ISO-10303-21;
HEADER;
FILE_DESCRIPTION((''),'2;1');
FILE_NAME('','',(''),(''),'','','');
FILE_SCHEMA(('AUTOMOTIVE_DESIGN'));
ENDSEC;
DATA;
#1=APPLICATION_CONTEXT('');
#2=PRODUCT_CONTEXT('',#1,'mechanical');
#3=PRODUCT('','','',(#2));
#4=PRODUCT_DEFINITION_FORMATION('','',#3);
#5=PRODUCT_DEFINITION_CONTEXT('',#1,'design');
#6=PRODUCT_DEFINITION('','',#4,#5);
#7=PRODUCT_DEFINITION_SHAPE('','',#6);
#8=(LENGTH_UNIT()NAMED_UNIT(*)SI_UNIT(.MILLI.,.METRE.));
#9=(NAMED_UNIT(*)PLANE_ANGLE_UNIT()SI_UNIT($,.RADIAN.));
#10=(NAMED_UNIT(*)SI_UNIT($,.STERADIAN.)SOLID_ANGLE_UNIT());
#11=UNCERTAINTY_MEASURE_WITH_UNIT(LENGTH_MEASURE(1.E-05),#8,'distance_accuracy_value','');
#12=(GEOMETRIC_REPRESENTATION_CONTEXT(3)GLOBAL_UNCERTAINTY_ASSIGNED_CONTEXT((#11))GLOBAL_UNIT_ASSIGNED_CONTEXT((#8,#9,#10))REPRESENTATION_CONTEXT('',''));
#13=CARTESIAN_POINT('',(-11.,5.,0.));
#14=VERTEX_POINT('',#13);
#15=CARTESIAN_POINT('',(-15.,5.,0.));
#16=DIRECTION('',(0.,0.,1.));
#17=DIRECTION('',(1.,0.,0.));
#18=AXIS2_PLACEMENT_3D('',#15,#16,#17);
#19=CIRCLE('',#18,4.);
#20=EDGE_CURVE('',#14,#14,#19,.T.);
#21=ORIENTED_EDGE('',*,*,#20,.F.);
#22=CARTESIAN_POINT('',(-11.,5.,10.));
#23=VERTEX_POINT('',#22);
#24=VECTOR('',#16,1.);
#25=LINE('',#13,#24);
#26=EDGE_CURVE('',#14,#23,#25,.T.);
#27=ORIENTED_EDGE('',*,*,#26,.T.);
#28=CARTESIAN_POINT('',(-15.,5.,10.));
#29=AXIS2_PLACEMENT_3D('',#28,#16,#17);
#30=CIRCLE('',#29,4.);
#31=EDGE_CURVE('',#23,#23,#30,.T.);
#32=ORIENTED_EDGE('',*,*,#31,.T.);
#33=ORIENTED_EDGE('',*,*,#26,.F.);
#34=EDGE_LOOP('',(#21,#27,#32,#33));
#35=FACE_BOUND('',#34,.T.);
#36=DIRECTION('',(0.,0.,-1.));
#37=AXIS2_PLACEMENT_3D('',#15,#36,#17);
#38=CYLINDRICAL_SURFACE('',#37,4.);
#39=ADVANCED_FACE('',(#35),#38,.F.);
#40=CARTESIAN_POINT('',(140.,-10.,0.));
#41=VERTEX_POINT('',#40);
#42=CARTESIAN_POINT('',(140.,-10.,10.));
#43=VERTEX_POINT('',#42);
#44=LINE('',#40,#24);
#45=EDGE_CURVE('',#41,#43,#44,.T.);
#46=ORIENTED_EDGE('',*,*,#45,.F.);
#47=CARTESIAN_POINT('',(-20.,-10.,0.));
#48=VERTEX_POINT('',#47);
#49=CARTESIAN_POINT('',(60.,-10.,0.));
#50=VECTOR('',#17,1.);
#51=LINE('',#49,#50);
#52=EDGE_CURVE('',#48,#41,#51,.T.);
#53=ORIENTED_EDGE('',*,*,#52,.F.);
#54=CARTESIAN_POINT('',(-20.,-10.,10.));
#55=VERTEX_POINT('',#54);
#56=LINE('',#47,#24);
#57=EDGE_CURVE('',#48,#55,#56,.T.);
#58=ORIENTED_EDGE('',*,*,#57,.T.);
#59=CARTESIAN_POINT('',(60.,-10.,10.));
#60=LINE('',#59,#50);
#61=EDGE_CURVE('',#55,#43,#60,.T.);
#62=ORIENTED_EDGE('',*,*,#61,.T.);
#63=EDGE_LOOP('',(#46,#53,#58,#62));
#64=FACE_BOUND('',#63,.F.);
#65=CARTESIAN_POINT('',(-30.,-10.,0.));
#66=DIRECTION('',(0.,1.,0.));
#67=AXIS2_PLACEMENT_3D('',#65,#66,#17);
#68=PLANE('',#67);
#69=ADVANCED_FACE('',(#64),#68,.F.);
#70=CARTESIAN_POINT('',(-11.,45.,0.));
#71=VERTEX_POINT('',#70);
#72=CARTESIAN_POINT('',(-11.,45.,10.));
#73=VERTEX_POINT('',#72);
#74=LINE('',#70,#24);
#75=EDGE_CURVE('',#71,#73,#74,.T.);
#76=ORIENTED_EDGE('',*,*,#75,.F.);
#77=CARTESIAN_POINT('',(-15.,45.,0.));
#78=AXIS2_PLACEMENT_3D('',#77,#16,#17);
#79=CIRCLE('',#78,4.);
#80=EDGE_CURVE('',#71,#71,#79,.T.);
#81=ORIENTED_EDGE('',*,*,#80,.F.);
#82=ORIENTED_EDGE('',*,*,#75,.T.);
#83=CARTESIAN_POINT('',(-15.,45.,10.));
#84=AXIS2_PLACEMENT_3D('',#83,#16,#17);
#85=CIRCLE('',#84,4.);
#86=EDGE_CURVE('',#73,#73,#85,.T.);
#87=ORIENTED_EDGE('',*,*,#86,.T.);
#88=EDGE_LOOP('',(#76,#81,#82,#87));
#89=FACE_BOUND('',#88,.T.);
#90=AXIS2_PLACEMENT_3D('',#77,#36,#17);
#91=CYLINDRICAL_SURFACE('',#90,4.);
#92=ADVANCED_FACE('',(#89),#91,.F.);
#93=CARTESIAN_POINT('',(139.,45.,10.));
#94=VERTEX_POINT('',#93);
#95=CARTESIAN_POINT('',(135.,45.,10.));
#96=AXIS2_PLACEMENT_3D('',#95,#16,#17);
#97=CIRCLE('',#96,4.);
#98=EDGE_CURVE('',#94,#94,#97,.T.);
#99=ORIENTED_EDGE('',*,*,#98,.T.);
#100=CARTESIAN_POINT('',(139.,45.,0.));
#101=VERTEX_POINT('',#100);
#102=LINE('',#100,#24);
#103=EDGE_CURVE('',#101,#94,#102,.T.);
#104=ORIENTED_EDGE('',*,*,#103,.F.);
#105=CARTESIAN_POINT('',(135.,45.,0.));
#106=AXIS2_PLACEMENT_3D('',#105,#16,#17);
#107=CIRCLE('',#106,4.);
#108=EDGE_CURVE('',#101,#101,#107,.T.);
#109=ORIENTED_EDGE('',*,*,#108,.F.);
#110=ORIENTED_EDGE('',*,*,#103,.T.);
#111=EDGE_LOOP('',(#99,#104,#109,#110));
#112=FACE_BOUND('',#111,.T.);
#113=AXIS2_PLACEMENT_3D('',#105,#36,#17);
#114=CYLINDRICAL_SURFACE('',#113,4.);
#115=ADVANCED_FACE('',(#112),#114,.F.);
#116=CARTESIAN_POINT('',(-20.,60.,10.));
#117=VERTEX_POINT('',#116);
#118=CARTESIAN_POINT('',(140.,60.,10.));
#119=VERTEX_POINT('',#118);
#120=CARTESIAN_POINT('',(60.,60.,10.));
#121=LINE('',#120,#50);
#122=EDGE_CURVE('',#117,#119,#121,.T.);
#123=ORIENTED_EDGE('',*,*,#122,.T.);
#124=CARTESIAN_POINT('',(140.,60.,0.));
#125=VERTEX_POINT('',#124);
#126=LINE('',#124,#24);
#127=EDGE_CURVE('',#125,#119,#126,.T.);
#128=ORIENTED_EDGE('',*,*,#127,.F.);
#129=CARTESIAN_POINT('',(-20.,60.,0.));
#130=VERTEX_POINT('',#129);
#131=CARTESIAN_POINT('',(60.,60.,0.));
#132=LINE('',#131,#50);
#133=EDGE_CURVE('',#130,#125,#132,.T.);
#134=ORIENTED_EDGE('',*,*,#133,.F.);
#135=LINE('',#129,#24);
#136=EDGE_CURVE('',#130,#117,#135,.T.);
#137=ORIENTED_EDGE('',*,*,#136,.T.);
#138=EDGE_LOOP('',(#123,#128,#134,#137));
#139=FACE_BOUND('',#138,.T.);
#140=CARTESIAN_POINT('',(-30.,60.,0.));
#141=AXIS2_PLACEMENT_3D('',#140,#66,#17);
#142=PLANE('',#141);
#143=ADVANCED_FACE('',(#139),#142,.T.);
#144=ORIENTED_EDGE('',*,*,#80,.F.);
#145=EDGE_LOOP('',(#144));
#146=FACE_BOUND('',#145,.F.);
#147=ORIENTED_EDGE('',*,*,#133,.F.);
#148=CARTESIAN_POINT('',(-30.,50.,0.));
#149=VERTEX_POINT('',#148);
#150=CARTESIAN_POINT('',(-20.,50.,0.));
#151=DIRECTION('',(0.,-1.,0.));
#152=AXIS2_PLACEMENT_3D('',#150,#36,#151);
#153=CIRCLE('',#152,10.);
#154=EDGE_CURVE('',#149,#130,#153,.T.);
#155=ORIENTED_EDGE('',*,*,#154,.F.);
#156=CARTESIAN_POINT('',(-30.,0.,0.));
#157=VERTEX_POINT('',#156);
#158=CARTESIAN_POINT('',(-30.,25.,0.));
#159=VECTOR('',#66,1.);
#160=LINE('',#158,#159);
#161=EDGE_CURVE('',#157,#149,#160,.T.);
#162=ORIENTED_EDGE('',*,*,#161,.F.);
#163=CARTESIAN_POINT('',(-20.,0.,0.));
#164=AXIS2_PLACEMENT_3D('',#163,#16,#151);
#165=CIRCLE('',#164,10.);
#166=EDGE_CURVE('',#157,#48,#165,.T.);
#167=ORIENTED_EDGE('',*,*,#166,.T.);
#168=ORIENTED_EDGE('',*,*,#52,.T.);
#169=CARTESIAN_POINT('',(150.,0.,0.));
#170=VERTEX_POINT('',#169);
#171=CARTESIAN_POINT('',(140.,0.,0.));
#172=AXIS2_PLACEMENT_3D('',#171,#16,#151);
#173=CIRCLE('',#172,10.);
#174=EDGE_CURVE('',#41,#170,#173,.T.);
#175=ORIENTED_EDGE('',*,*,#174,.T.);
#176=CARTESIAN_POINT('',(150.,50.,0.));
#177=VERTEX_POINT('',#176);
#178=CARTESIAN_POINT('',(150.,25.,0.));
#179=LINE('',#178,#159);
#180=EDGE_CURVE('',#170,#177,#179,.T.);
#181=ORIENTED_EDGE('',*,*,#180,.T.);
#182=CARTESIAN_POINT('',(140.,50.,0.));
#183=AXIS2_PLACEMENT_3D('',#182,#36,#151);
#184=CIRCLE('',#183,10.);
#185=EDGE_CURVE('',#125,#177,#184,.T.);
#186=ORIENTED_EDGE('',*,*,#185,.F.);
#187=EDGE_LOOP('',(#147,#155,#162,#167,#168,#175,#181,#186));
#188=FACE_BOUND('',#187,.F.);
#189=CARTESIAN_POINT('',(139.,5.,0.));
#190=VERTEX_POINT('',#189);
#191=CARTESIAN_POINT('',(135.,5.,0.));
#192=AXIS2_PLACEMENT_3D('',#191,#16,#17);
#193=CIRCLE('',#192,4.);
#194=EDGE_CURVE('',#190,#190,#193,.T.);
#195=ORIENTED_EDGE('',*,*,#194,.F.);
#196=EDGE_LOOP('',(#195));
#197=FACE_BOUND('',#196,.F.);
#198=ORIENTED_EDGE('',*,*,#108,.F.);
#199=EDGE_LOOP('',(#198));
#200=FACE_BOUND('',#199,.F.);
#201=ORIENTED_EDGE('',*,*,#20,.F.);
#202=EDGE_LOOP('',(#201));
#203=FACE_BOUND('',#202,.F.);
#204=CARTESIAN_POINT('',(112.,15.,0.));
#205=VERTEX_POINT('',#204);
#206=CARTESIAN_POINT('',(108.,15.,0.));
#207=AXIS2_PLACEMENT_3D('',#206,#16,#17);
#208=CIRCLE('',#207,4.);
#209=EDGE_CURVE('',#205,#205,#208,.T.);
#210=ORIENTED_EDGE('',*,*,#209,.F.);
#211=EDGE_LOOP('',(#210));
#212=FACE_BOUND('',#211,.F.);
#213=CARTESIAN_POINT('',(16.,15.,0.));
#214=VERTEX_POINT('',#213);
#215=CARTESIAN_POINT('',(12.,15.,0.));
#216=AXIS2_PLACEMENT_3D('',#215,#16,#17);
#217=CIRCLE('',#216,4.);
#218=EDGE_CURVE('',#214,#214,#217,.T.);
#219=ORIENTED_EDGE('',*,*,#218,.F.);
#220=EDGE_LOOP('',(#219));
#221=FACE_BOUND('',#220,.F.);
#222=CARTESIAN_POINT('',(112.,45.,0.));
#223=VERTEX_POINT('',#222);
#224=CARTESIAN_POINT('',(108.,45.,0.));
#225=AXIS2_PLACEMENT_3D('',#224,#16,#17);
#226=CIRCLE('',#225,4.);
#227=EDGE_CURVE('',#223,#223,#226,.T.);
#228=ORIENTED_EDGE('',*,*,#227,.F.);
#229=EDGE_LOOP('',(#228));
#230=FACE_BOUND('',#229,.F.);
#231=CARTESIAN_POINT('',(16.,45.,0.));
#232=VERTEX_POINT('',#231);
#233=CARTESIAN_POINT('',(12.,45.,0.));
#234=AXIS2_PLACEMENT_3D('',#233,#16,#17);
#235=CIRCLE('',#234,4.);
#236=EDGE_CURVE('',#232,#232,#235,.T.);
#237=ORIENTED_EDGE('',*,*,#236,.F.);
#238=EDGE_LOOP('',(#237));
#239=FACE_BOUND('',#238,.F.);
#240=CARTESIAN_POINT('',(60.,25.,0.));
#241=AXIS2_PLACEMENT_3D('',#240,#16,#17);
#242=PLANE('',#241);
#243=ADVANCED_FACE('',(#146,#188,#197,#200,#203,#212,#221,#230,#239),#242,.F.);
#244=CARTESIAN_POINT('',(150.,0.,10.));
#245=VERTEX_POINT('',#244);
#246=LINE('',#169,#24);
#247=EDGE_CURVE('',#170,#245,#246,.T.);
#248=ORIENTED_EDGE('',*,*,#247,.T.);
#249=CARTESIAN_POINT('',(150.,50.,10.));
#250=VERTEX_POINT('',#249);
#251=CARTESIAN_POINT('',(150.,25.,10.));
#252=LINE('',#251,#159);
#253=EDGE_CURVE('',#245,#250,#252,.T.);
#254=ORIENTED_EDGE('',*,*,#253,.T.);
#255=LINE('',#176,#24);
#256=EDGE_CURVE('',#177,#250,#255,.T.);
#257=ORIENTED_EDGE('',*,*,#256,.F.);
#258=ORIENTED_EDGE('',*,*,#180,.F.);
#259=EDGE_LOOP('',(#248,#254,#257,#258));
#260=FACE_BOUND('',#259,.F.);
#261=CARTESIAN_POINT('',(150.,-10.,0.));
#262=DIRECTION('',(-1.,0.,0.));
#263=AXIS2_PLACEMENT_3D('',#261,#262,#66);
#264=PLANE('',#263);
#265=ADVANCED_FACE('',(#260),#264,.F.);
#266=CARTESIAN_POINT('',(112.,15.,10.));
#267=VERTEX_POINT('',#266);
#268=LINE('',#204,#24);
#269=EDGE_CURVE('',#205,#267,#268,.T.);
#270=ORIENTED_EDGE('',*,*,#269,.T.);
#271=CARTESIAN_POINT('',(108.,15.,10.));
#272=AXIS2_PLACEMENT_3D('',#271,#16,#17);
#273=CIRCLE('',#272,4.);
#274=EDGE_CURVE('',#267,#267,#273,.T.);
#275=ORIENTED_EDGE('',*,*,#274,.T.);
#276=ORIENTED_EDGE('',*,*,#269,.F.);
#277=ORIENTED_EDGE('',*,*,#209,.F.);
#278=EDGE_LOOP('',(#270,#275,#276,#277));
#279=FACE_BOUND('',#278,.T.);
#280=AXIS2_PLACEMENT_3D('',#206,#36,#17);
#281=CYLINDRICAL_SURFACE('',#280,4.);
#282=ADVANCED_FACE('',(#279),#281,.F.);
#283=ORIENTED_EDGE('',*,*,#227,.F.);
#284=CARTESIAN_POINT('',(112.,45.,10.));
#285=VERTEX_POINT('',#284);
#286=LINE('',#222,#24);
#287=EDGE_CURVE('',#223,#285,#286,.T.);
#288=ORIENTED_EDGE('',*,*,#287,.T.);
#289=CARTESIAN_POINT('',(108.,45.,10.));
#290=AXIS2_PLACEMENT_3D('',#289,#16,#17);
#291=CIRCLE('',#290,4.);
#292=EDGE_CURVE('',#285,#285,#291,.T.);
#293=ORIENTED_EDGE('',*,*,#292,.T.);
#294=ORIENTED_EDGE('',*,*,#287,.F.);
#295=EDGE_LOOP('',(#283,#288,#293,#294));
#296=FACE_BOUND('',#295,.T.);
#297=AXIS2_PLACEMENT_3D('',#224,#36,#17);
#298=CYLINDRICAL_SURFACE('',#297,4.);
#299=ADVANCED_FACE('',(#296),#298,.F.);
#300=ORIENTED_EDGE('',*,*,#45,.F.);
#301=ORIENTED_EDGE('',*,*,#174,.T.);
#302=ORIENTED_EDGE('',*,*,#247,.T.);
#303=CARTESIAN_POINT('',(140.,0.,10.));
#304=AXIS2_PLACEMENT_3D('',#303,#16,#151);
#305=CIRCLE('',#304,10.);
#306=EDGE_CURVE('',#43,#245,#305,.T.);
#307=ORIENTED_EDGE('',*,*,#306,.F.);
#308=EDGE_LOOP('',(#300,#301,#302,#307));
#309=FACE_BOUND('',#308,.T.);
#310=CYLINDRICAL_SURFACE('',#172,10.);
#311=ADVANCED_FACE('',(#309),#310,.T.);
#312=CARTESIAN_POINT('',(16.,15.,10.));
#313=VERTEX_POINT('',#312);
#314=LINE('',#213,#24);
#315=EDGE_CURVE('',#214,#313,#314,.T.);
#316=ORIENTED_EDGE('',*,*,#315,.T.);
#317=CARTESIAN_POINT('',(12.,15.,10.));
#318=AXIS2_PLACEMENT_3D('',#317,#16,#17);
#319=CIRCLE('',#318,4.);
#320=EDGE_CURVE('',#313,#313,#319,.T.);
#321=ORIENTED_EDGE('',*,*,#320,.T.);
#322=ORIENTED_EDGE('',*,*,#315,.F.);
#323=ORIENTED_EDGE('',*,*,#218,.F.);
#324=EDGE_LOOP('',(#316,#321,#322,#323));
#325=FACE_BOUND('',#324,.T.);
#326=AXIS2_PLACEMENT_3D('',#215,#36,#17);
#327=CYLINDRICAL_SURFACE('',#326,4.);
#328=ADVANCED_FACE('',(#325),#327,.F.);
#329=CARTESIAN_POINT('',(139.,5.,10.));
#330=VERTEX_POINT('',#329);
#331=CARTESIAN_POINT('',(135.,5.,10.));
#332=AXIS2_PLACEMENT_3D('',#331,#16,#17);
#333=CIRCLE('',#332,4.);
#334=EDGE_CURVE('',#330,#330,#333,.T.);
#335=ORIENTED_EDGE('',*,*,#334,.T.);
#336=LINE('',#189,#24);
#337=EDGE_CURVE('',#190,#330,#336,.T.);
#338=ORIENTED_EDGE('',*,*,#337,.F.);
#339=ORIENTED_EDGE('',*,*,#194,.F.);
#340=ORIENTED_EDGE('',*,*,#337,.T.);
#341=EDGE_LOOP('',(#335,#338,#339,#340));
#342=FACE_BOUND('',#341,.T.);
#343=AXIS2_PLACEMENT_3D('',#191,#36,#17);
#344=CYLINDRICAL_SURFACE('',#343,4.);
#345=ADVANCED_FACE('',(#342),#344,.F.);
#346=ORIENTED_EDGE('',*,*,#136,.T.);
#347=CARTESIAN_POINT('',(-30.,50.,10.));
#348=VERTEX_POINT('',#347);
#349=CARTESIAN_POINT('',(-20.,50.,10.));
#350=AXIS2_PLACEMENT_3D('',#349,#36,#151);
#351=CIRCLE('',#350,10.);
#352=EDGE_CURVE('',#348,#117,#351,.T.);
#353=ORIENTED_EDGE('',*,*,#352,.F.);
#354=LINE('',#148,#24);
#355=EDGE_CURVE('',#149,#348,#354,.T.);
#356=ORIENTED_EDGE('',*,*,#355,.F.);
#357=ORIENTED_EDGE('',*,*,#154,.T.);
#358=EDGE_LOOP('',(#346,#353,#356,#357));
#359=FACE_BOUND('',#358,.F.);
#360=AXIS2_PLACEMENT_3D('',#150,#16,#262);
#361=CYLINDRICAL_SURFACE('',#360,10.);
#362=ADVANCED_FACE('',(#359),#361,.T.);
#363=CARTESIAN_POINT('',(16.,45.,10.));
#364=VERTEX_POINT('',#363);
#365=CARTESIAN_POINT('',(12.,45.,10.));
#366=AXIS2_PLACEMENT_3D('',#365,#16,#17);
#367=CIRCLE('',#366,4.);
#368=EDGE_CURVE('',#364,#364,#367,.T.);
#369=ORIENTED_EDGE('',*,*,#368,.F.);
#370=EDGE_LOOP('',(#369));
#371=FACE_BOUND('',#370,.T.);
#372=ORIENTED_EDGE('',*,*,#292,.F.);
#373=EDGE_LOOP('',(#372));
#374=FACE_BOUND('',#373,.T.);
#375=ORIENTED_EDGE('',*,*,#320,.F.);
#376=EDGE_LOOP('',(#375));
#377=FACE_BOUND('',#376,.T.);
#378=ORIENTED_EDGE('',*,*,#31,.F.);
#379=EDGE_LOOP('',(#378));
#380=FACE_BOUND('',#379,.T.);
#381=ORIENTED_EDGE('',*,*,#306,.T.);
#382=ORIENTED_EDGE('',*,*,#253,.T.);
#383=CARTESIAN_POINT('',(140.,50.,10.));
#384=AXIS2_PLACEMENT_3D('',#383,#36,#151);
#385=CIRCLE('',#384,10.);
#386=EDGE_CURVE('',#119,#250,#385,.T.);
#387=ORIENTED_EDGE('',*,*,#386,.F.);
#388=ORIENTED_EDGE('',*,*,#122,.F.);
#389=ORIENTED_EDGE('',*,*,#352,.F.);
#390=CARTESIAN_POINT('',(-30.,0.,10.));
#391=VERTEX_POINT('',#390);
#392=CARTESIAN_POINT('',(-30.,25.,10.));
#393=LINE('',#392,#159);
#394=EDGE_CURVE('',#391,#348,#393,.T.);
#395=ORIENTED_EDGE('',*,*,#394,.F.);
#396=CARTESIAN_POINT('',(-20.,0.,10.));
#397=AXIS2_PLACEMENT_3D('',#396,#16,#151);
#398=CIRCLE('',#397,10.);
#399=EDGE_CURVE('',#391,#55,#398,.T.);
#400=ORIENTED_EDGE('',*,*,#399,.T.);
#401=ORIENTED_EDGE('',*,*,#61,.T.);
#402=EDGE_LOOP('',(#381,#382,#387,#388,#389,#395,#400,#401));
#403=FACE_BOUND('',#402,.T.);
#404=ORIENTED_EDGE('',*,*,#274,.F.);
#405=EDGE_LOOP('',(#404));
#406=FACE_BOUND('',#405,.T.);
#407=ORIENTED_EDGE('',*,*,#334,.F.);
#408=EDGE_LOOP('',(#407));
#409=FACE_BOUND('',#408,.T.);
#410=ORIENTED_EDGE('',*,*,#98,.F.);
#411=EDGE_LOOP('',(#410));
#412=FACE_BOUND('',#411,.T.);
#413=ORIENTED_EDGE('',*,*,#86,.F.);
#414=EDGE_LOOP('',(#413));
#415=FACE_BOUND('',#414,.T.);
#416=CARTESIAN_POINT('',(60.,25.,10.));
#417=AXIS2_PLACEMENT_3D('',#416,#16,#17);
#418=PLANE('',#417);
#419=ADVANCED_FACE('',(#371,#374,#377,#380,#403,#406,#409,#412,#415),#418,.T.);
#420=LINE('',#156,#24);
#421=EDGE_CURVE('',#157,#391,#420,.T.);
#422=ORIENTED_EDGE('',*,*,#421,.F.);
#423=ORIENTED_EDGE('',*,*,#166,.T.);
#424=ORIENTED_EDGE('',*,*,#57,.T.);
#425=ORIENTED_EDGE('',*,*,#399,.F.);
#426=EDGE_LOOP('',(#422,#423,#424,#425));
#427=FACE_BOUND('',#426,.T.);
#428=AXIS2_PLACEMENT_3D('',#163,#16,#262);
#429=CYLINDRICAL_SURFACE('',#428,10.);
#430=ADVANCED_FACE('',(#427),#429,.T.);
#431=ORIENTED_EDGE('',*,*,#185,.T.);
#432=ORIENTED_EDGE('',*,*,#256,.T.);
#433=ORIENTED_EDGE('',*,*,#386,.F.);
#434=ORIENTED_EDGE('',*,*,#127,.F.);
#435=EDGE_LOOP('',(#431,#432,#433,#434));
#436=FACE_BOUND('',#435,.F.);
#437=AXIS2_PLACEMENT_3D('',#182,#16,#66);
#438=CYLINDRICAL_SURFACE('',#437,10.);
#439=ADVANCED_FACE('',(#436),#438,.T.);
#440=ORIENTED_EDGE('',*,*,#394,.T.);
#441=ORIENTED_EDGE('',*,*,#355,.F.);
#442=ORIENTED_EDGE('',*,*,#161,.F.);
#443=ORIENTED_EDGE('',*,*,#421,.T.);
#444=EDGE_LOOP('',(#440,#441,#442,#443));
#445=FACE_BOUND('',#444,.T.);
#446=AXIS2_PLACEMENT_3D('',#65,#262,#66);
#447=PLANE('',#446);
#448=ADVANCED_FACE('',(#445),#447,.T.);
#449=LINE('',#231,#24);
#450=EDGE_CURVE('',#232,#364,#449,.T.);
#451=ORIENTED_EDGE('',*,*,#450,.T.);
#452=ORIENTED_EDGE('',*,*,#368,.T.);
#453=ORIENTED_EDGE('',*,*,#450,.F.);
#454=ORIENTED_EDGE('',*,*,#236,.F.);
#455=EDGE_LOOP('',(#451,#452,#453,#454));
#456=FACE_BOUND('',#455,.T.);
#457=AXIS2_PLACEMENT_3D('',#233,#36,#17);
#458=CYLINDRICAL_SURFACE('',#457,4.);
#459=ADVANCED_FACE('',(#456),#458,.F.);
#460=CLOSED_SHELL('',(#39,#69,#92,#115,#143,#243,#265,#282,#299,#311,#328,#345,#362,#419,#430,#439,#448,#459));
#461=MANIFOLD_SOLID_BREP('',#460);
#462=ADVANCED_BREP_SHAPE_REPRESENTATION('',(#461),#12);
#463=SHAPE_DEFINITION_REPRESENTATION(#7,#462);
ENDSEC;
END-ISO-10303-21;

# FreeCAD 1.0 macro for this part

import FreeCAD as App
import Part
import Sketcher
from FreeCAD import Vector
Q = App.Units.Quantity


def edges_at(feature, points):
    """Names of the edges that pass closest to the given points."""
    edges = feature.Shape.Edges
    near = lambda p: min(range(len(edges)), key=lambda i: edges[i].distToShape(Part.Vertex(*p))[0])
    return sorted({f"Edge{near(p) + 1}" for p in points})


def add_polygon(sketch, points):
    """Adds a closed chain of lines whose ends are joined by coincident constraints."""
    first, n = sketch.GeometryCount, len(points)
    for a, b in zip(points, points[1:] + points[:1]):
        sketch.addGeometry(Part.LineSegment(App.Vector(*a, 0), App.Vector(*b, 0)), False)
    for i in range(n):
        sketch.addConstraint(Sketcher.Constraint("Coincident", first + i, 2, first + (i + 1) % n, 1))

doc = App.newDocument("Part")
body = doc.addObject("PartDesign::Body", "Body")

# Sketch on XY plane
sketch1 = body.newObject("Sketcher::SketchObject", "Sketch")
sketch1.AttachmentSupport = (doc.getObject("XY_Plane"), [""])
sketch1.MapMode = "FlatFace"
add_polygon(sketch1, [(-30, 60), (-30, -10), (150, -10), (150, 60)])  # lines 0-3
sketch1.addGeometry(Part.Circle(Vector(-15, 5, 0), Vector(0, 0, 1), 4), False)  # 4
sketch1.addGeometry(Part.Circle(Vector(12, 15, 0), Vector(0, 0, 1), 4), False)  # 5
sketch1.addGeometry(Part.Circle(Vector(135, 5, 0), Vector(0, 0, 1), 4), False)  # 6
sketch1.addGeometry(Part.Circle(Vector(108, 15, 0), Vector(0, 0, 1), 4), False)  # 7
sketch1.addGeometry(Part.Circle(Vector(-15, 45, 0), Vector(0, 0, 1), 4), False)  # 8
sketch1.addGeometry(Part.Circle(Vector(12, 45, 0), Vector(0, 0, 1), 4), False)  # 9
sketch1.addGeometry(Part.Circle(Vector(108, 45, 0), Vector(0, 0, 1), 4), False)  # 10
sketch1.addGeometry(Part.Circle(Vector(135, 45, 0), Vector(0, 0, 1), 4), False)  # 11
sketch1.addConstraint(Sketcher.Constraint("Vertical", 0))
sketch1.addConstraint(Sketcher.Constraint("Horizontal", 1))
sketch1.addConstraint(Sketcher.Constraint("Vertical", 2))
sketch1.addConstraint(Sketcher.Constraint("Horizontal", 3))
sketch1.addConstraint(Sketcher.Constraint("Equal", 4, 5))
sketch1.addConstraint(Sketcher.Constraint("Equal", 5, 6))
sketch1.addConstraint(Sketcher.Constraint("Equal", 6, 7))
sketch1.addConstraint(Sketcher.Constraint("Equal", 7, 8))
sketch1.addConstraint(Sketcher.Constraint("Equal", 8, 9))
sketch1.addConstraint(Sketcher.Constraint("Equal", 9, 10))
sketch1.addConstraint(Sketcher.Constraint("Equal", 10, 11))
sketch1.addConstraint(Sketcher.Constraint("Horizontal", 4, 3, 6, 3))
sketch1.addConstraint(Sketcher.Constraint("Horizontal", 5, 3, 7, 3))
sketch1.addConstraint(Sketcher.Constraint("Horizontal", 8, 3, 9, 3))
sketch1.addConstraint(Sketcher.Constraint("Horizontal", 9, 3, 10, 3))
sketch1.addConstraint(Sketcher.Constraint("Horizontal", 10, 3, 11, 3))
sketch1.addConstraint(Sketcher.Constraint("Vertical", 4, 3, 8, 3))
sketch1.addConstraint(Sketcher.Constraint("Vertical", 5, 3, 9, 3))
sketch1.addConstraint(Sketcher.Constraint("Vertical", 7, 3, 10, 3))
sketch1.addConstraint(Sketcher.Constraint("Vertical", 6, 3, 11, 3))
sketch1.addConstraint(Sketcher.Constraint("Diameter", 4, Q("8 mm")))
sketch1.addConstraint(Sketcher.Constraint("DistanceX", 1, 1, 1, 2, Q("180 mm")))
sketch1.addConstraint(Sketcher.Constraint("DistanceY", 0, 2, 0, 1, Q("70 mm")))
sketch1.addConstraint(Sketcher.Constraint("DistanceX", 4, 3, -1, 1, Q("15 mm")))
sketch1.addConstraint(Sketcher.Constraint("DistanceY", -1, 1, 4, 3, Q("5 mm")))
sketch1.addConstraint(Sketcher.Constraint("DistanceX", -1, 1, 5, 3, Q("12 mm")))
sketch1.addConstraint(Sketcher.Constraint("DistanceY", -1, 1, 5, 3, Q("15 mm")))
sketch1.addConstraint(Sketcher.Constraint("DistanceX", -1, 1, 6, 3, Q("135 mm")))
sketch1.addConstraint(Sketcher.Constraint("DistanceX", -1, 1, 7, 3, Q("108 mm")))
sketch1.addConstraint(Sketcher.Constraint("DistanceY", -1, 1, 8, 3, Q("45 mm")))
sketch1.addConstraint(Sketcher.Constraint("DistanceX", 0, 2, -1, 1, Q("30 mm")))
sketch1.addConstraint(Sketcher.Constraint("DistanceY", 0, 2, -1, 1, Q("10 mm")))
pad1 = body.newObject("PartDesign::Pad", "Pad")
pad1.Profile = sketch1
pad1.Length = 10
doc.recompute()

fillet = body.newObject("PartDesign::Fillet", "Fillet")
fillet.Base = (pad1, edges_at(pad1, [
    (-30, -10, 5),
    (-30, 60, 5),
    (150, -10, 5),
    (150, 60, 5),
]))
fillet.Radius = 10

doc.recompute()
